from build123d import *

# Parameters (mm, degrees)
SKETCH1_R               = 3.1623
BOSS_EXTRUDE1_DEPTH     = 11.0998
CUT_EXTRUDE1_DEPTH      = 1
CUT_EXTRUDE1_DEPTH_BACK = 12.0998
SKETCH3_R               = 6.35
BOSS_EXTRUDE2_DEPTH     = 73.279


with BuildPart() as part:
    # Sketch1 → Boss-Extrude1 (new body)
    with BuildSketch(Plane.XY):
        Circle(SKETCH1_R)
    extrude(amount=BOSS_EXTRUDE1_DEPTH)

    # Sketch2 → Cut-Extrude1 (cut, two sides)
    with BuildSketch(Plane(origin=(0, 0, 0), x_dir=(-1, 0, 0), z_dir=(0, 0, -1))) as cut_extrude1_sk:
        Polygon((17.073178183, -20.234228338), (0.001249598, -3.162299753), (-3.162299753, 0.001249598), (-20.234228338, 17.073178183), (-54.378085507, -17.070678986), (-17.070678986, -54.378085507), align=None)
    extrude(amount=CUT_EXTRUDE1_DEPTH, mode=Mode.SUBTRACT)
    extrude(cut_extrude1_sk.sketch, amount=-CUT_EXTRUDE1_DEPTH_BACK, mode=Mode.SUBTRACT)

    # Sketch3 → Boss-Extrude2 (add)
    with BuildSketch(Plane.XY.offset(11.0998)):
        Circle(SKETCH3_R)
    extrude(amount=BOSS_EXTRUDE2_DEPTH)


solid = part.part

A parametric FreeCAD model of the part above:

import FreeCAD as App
import Part
import Sketcher

V = App.Vector
Q = App.Units.Quantity

doc = App.newDocument("Part")
body = doc.addObject("PartDesign::Body", "Body")

sketch1 = body.newObject("Sketcher::SketchObject", "Sketch")
sketch1.AttachmentSupport = (doc.getObject("XY_Plane"), [""])
sketch1.MapMode = "FlatFace"
sketch1.addGeometry(Part.Circle(V(0, 0, 0), V(0, 0, 1), 3.2), False)
sketch1.addConstraint(Sketcher.Constraint("Coincident", 0, 3, -1, 1))
sketch1.addConstraint(Sketcher.Constraint("Diameter", 0, Q("0.249 in")))
pad1 = body.newObject("PartDesign::Pad", "Pad")
pad1.Profile = sketch1
pad1.Length = Q("0.437 in")

sketch2 = body.newObject("Sketcher::SketchObject", "Sketch001")
sketch2.AttachmentSupport = (doc.getObject("XY_Plane"), [""])
sketch2.MapMode = "FlatFace"
sketch2.addGeometry(Part.LineSegment(V(-17, -20, 0), V(20, 17, 0)), False)
sketch2.addGeometry(Part.LineSegment(V(20, 17, 0), V(54, -17, 0)), False)
sketch2.addGeometry(Part.LineSegment(V(54, -17, 0), V(17, -54, 0)), False)
sketch2.addGeometry(Part.LineSegment(V(17, -54, 0), V(-17, -20, 0)), False)
sketch2.addConstraint(Sketcher.Constraint("Coincident", 0, 2, 1, 1))
sketch2.addConstraint(Sketcher.Constraint("Coincident", 1, 2, 2, 1))
sketch2.addConstraint(Sketcher.Constraint("Coincident", 2, 2, 3, 1))
sketch2.addConstraint(Sketcher.Constraint("Coincident", 3, 2, 0, 1))
sketch2.addConstraint(Sketcher.Constraint("Perpendicular", 0, 1))
sketch2.addConstraint(Sketcher.Constraint("Perpendicular", 1, 2))
sketch2.addConstraint(Sketcher.Constraint("Perpendicular", 2, 3))
sketch2.addConstraint(Sketcher.Constraint("Angle", 0, Q("45 deg")))
sketch2.addConstraint(Sketcher.Constraint("Distance", 0, 52.76064))
sketch2.addConstraint(Sketcher.Constraint("DistanceX", -1, 1, 0, 2, 20.234228))
sketch2.addConstraint(Sketcher.Constraint("DistanceY", -1, 1, 0, 2, 17.073178))
sketch2.addConstraint(Sketcher.Constraint("DistanceY", 1, 2, -1, 1, 17.070679))
pocket1 = body.newObject("PartDesign::Pocket", "Pocket")
pocket1.Profile = sketch2
pocket1.Type = "ThroughAll"
pocket1.Midplane = True

sketch3 = body.newObject("Sketcher::SketchObject", "Sketch002")
sketch3.AttachmentSupport = (doc.getObject("XY_Plane"), [""])
sketch3.MapMode = "FlatFace"
sketch3.AttachmentOffset = App.Placement(V(0, 0, 0.437 * 25.4), App.Rotation())
sketch3.addGeometry(Part.Circle(V(0, 0, 0), V(0, 0, 1), 6), False)
sketch3.addConstraint(Sketcher.Constraint("Coincident", 0, 3, -1, 1))
sketch3.addConstraint(Sketcher.Constraint("Diameter", 0, Q("0.5 in")))
pad2 = body.newObject("PartDesign::Pad", "Pad001")
pad2.Profile = sketch3
pad2.Length = Q("2.885 in")

doc.recompute()
